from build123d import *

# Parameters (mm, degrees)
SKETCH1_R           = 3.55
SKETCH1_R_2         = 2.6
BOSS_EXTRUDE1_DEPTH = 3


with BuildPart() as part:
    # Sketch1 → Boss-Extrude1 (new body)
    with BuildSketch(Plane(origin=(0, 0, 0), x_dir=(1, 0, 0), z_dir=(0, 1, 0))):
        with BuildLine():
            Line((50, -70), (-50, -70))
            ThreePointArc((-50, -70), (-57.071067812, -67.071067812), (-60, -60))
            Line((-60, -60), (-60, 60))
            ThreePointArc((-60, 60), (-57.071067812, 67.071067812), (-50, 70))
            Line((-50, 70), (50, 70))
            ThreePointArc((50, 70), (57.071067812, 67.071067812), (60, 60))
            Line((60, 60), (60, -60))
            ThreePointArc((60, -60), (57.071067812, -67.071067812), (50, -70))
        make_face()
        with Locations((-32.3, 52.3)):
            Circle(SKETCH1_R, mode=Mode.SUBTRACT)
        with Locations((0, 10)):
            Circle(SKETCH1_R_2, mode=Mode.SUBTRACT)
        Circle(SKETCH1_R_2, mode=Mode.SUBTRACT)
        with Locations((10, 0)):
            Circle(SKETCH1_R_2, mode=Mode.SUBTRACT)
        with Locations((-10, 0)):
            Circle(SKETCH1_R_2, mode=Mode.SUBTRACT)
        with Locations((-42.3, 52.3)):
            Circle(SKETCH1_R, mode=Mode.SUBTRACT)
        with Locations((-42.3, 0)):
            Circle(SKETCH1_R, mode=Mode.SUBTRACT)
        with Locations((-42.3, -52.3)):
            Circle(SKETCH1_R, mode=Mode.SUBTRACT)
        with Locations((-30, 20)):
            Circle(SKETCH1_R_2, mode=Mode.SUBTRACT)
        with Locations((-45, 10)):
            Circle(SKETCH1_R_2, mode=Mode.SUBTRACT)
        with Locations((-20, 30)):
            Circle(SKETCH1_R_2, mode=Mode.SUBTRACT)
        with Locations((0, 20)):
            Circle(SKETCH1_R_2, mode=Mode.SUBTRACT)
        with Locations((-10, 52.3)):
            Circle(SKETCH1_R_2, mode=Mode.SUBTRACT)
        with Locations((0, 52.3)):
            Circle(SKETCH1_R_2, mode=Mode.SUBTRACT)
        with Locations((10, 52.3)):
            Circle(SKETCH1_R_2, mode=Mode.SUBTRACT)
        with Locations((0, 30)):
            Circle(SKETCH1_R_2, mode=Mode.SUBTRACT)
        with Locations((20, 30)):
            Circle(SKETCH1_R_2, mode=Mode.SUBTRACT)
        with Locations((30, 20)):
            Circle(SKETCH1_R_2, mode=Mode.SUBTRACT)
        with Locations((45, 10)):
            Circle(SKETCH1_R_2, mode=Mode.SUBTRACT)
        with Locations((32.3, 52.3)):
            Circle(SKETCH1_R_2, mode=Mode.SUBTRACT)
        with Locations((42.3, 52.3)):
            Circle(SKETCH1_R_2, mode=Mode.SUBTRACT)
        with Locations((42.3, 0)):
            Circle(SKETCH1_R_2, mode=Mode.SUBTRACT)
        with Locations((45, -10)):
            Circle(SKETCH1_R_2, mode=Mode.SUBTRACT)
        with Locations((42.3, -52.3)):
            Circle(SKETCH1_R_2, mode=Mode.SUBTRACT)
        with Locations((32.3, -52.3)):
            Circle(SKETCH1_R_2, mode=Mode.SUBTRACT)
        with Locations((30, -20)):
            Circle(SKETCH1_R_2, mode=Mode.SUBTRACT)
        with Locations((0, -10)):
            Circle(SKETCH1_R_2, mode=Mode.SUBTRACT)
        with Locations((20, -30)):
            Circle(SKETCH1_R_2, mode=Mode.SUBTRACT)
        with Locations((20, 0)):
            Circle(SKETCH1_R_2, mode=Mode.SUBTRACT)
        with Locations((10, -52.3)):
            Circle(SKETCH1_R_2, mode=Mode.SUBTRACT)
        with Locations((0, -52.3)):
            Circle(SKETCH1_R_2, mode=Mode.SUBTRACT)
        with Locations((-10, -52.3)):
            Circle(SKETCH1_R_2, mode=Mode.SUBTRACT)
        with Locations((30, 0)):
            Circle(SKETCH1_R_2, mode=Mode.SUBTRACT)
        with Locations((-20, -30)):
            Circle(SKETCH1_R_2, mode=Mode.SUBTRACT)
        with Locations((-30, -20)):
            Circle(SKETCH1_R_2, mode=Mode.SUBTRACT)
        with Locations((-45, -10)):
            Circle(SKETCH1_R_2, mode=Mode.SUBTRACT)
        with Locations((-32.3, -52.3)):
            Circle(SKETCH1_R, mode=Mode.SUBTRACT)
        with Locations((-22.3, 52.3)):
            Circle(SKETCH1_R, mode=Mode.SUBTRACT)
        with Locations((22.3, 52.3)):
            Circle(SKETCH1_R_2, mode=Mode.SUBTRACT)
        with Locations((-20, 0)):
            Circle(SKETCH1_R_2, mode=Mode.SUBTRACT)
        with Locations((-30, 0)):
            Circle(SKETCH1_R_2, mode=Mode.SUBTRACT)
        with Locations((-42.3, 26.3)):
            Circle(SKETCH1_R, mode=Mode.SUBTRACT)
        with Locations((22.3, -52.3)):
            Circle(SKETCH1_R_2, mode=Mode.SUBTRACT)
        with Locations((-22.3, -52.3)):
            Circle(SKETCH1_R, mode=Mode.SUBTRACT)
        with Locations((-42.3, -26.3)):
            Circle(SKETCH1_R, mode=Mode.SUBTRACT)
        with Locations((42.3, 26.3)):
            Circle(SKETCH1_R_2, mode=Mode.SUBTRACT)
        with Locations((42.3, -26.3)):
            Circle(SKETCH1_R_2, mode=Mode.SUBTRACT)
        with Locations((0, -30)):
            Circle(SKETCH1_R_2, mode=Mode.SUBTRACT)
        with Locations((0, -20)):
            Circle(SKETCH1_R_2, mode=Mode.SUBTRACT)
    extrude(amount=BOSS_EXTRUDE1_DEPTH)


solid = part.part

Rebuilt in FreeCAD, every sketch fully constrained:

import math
import FreeCAD as App
import Part
import Sketcher

V = App.Vector

doc = App.newDocument("Part")
body = doc.addObject("PartDesign::Body", "Body")

# Sketch on XZ plane
sketch1 = body.newObject("Sketcher::SketchObject", "Sketch")
sketch1.AttachmentSupport = (doc.getObject("XZ_Plane"), [""])
sketch1.MapMode = "FlatFace"
sketch1.addGeometry(Part.LineSegment(V(-50, 70, 0), V(50, 70, 0)), False)
sketch1.addGeometry(Part.ArcOfCircle(Part.Circle(V(50, 60, 0), V(0, 0, 1), 10), math.radians(0), math.radians(90)), False)
sketch1.addGeometry(Part.LineSegment(V(60, 60, 0), V(60, -60, 0)), False)
sketch1.addGeometry(Part.ArcOfCircle(Part.Circle(V(50, -60, 0), V(0, 0, 1), 10), math.radians(-90), math.radians(0)), False)
sketch1.addGeometry(Part.LineSegment(V(50, -70, 0), V(-50, -70, 0)), False)
sketch1.addGeometry(Part.ArcOfCircle(Part.Circle(V(-50, -60, 0), V(0, 0, 1), 10), math.radians(180), math.radians(270)), False)
sketch1.addGeometry(Part.LineSegment(V(-60, -60, 0), V(-60, 60, 0)), False)
sketch1.addGeometry(Part.ArcOfCircle(Part.Circle(V(-50, 60, 0), V(0, 0, 1), 10), math.radians(90), math.radians(180)), False)
sketch1.addGeometry(Part.Circle(V(42.3, 52.3, 0), V(0, 0, 1), 2.6), False)
sketch1.addGeometry(Part.Circle(V(32.3, 52.3, 0), V(0, 0, 1), 2.6), False)
sketch1.addGeometry(Part.Circle(V(22.3, 52.3, 0), V(0, 0, 1), 2.6), False)
sketch1.addGeometry(Part.Circle(V(10, 52.3, 0), V(0, 0, 1), 2.6), False)
sketch1.addGeometry(Part.Circle(V(20, 30, 0), V(0, 0, 1), 2.6), False)
sketch1.addGeometry(Part.Circle(V(42.3, 26.3, 0), V(0, 0, 1), 2.6), False)
sketch1.addGeometry(Part.Circle(V(30, 20, 0), V(0, 0, 1), 2.6), False)
sketch1.addGeometry(Part.Circle(V(45, 10, 0), V(0, 0, 1), 2.6), False)
sketch1.addGeometry(Part.Circle(V(0, 52.3, 0), V(0, 0, 1), 2.6), False)
sketch1.addGeometry(Part.Circle(V(-10, 52.3, 0), V(0, 0, 1), 2.6), False)
sketch1.addGeometry(Part.Circle(V(-22.3, 52.3, 0), V(0, 0, 1), 3.5), False)
sketch1.addGeometry(Part.Circle(V(0, 30, 0), V(0, 0, 1), 2.6), False)
sketch1.addGeometry(Part.Circle(V(-20, 30, 0), V(0, 0, 1), 2.6), False)
sketch1.addGeometry(Part.Circle(V(-32.3, 52.3, 0), V(0, 0, 1), 3.5), False)
sketch1.addGeometry(Part.Circle(V(-42.3, 52.3, 0), V(0, 0, 1), 3.5), False)
sketch1.addGeometry(Part.Circle(V(0, 20, 0), V(0, 0, 1), 2.6), False)
sketch1.addGeometry(Part.Circle(V(0, 10, 0), V(0, 0, 1), 2.6), False)
sketch1.addGeometry(Part.Circle(V(-30, 20, 0), V(0, 0, 1), 2.6), False)
sketch1.addGeometry(Part.Circle(V(-42.3, 26.3, 0), V(0, 0, 1), 3.5), False)
sketch1.addGeometry(Part.Circle(V(-45, 10, 0), V(0, 0, 1), 2.6), False)
sketch1.addGeometry(Part.Circle(V(42.3, 0, 0), V(0, 0, 1), 2.6), False)
sketch1.addGeometry(Part.Circle(V(45, -10, 0), V(0, 0, 1), 2.6), False)
sketch1.addGeometry(Part.Circle(V(30, 0, 0), V(0, 0, 1), 2.6), False)
sketch1.addGeometry(Part.Circle(V(42.3, -26.3, 0), V(0, 0, 1), 2.6), False)
sketch1.addGeometry(Part.Circle(V(30, -20, 0), V(0, 0, 1), 2.6), False)
sketch1.addGeometry(Part.Circle(V(20, 0, 0), V(0, 0, 1), 2.6), False)
sketch1.addGeometry(Part.Circle(V(10, 0, 0), V(0, 0, 1), 2.6), False)
sketch1.addGeometry(Part.Circle(V(42.3, -52.3, 0), V(0, 0, 1), 2.6), False)
sketch1.addGeometry(Part.Circle(V(32.3, -52.3, 0), V(0, 0, 1), 2.6), False)
sketch1.addGeometry(Part.Circle(V(20, -30, 0), V(0, 0, 1), 2.6), False)
sketch1.addGeometry(Part.Circle(V(22.3, -52.3, 0), V(0, 0, 1), 2.6), False)
sketch1.addGeometry(Part.Circle(V(10, -52.3, 0), V(0, 0, 1), 2.6), False)
sketch1.addGeometry(Part.Circle(V(0, 0, 0), V(0, 0, 1), 2.6), False)
sketch1.addGeometry(Part.Circle(V(-10, 0, 0), V(0, 0, 1), 2.6), False)
sketch1.addGeometry(Part.Circle(V(0, -10, 0), V(0, 0, 1), 2.6), False)
sketch1.addGeometry(Part.Circle(V(-20, 0, 0), V(0, 0, 1), 2.6), False)
sketch1.addGeometry(Part.Circle(V(0, -20, 0), V(0, 0, 1), 2.6), False)
sketch1.addGeometry(Part.Circle(V(-30, 0, 0), V(0, 0, 1), 2.6), False)
sketch1.addGeometry(Part.Circle(V(-42.3, 0, 0), V(0, 0, 1), 3.5), False)
sketch1.addGeometry(Part.Circle(V(-45, -10, 0), V(0, 0, 1), 2.6), False)
sketch1.addGeometry(Part.Circle(V(-30, -20, 0), V(0, 0, 1), 2.6), False)
sketch1.addGeometry(Part.Circle(V(-42.3, -26.3, 0), V(0, 0, 1), 3.5), False)
sketch1.addGeometry(Part.Circle(V(0, -30, 0), V(0, 0, 1), 2.6), False)
sketch1.addGeometry(Part.Circle(V(-20, -30, 0), V(0, 0, 1), 2.6), False)
sketch1.addGeometry(Part.Circle(V(0, -52.3, 0), V(0, 0, 1), 2.6), False)
sketch1.addGeometry(Part.Circle(V(-10, -52.3, 0), V(0, 0, 1), 2.6), False)
sketch1.addGeometry(Part.Circle(V(-22.3, -52.3, 0), V(0, 0, 1), 3.5), False)
sketch1.addGeometry(Part.Circle(V(-32.3, -52.3, 0), V(0, 0, 1), 3.5), False)
sketch1.addGeometry(Part.Circle(V(-42.3, -52.3, 0), V(0, 0, 1), 3.5), False)
sketch1.addConstraint(Sketcher.Constraint("Tangent", 0, 2, 1, 2))
sketch1.addConstraint(Sketcher.Constraint("Tangent", 1, 1, 2, 1))
sketch1.addConstraint(Sketcher.Constraint("Tangent", 2, 2, 3, 2))
sketch1.addConstraint(Sketcher.Constraint("Tangent", 3, 1, 4, 1))
sketch1.addConstraint(Sketcher.Constraint("Tangent", 4, 2, 5, 2))
sketch1.addConstraint(Sketcher.Constraint("Tangent", 5, 1, 6, 1))
sketch1.addConstraint(Sketcher.Constraint("Tangent", 6, 2, 7, 2))
sketch1.addConstraint(Sketcher.Constraint("Tangent", 7, 1, 0, 1))
sketch1.addConstraint(Sketcher.Constraint("Horizontal", 0))
sketch1.addConstraint(Sketcher.Constraint("Vertical", 2))
sketch1.addConstraint(Sketcher.Constraint("Horizontal", 4))
sketch1.addConstraint(Sketcher.Constraint("Vertical", 6))
sketch1.addConstraint(Sketcher.Constraint("Coincident", 40, 3, -1, 1))
sketch1.addConstraint(Sketcher.Constraint("Equal", 1, 3))
sketch1.addConstraint(Sketcher.Constraint("Equal", 3, 5))
sketch1.addConstraint(Sketcher.Constraint("Equal", 5, 7))
sketch1.addConstraint(Sketcher.Constraint("Equal", 8, 9))
sketch1.addConstraint(Sketcher.Constraint("Equal", 9, 10))
sketch1.addConstraint(Sketcher.Constraint("Equal", 10, 11))
sketch1.addConstraint(Sketcher.Constraint("Equal", 11, 12))
sketch1.addConstraint(Sketcher.Constraint("Equal", 12, 13))
sketch1.addConstraint(Sketcher.Constraint("Equal", 13, 14))
sketch1.addConstraint(Sketcher.Constraint("Equal", 14, 15))
sketch1.addConstraint(Sketcher.Constraint("Equal", 15, 16))
sketch1.addConstraint(Sketcher.Constraint("Equal", 16, 17))
sketch1.addConstraint(Sketcher.Constraint("Equal", 17, 19))
sketch1.addConstraint(Sketcher.Constraint("Equal", 19, 20))
sketch1.addConstraint(Sketcher.Constraint("Equal", 18, 21))
sketch1.addConstraint(Sketcher.Constraint("Equal", 21, 22))
sketch1.addConstraint(Sketcher.Constraint("Equal", 20, 23))
sketch1.addConstraint(Sketcher.Constraint("Equal", 23, 24))
sketch1.addConstraint(Sketcher.Constraint("Equal", 24, 25))
sketch1.addConstraint(Sketcher.Constraint("Equal", 22, 26))
sketch1.addConstraint(Sketcher.Constraint("Equal", 25, 27))
sketch1.addConstraint(Sketcher.Constraint("Equal", 27, 28))
sketch1.addConstraint(Sketcher.Constraint("Equal", 28, 29))
sketch1.addConstraint(Sketcher.Constraint("Equal", 29, 30))
sketch1.addConstraint(Sketcher.Constraint("Equal", 30, 31))
sketch1.addConstraint(Sketcher.Constraint("Equal", 31, 32))
sketch1.addConstraint(Sketcher.Constraint("Equal", 32, 33))
sketch1.addConstraint(Sketcher.Constraint("Equal", 33, 34))
sketch1.addConstraint(Sketcher.Constraint("Equal", 34, 35))
sketch1.addConstraint(Sketcher.Constraint("Equal", 35, 36))
sketch1.addConstraint(Sketcher.Constraint("Equal", 36, 37))
sketch1.addConstraint(Sketcher.Constraint("Equal", 37, 38))
sketch1.addConstraint(Sketcher.Constraint("Equal", 38, 39))
sketch1.addConstraint(Sketcher.Constraint("Equal", 39, 40))
sketch1.addConstraint(Sketcher.Constraint("Equal", 40, 41))
sketch1.addConstraint(Sketcher.Constraint("Equal", 41, 42))
sketch1.addConstraint(Sketcher.Constraint("Equal", 42, 43))
sketch1.addConstraint(Sketcher.Constraint("Equal", 43, 44))
sketch1.addConstraint(Sketcher.Constraint("Equal", 44, 45))
sketch1.addConstraint(Sketcher.Constraint("Equal", 26, 46))
sketch1.addConstraint(Sketcher.Constraint("Equal", 45, 47))
sketch1.addConstraint(Sketcher.Constraint("Equal", 47, 48))
sketch1.addConstraint(Sketcher.Constraint("Equal", 46, 49))
sketch1.addConstraint(Sketcher.Constraint("Equal", 48, 50))
sketch1.addConstraint(Sketcher.Constraint("Equal", 50, 51))
sketch1.addConstraint(Sketcher.Constraint("Equal", 51, 52))
sketch1.addConstraint(Sketcher.Constraint("Equal", 52, 53))
sketch1.addConstraint(Sketcher.Constraint("Equal", 49, 54))
sketch1.addConstraint(Sketcher.Constraint("Equal", 54, 55))
sketch1.addConstraint(Sketcher.Constraint("Equal", 55, 56))
sketch1.addConstraint(Sketcher.Constraint("Symmetric", 1, 3, 5, 3, -1, 1))
sketch1.addConstraint(Sketcher.Constraint("Symmetric", 27, 3, 29, 3, -1, 1))
sketch1.addConstraint(Sketcher.Constraint("Symmetric", 26, 3, 31, 3, -1, 1))
sketch1.addConstraint(Sketcher.Constraint("Symmetric", 25, 3, 32, 3, -1, 1))
sketch1.addConstraint(Sketcher.Constraint("Symmetric", 22, 3, 35, 3, -1, 1))
sketch1.addConstraint(Sketcher.Constraint("Symmetric", 21, 3, 36, 3, -1, 1))
sketch1.addConstraint(Sketcher.Constraint("Symmetric", 20, 3, 37, 3, -1, 1))
sketch1.addConstraint(Sketcher.Constraint("Symmetric", 18, 3, 38, 3, -1, 1))
sketch1.addConstraint(Sketcher.Constraint("Symmetric", 17, 3, 39, 3, -1, 1))
sketch1.addConstraint(Sketcher.Constraint("Symmetric", 34, 3, 41, 3, -1, 1))
sketch1.addConstraint(Sketcher.Constraint("Symmetric", 24, 3, 42, 3, -1, 1))
sketch1.addConstraint(Sketcher.Constraint("Symmetric", 33, 3, 43, 3, -1, 1))
sketch1.addConstraint(Sketcher.Constraint("Symmetric", 23, 3, 44, 3, -1, 1))
sketch1.addConstraint(Sketcher.Constraint("Symmetric", 30, 3, 45, 3, -1, 1))
sketch1.addConstraint(Sketcher.Constraint("Symmetric", 28, 3, 46, 3, -1, 1))
sketch1.addConstraint(Sketcher.Constraint("Symmetric", 15, 3, 47, 3, -1, 1))
sketch1.addConstraint(Sketcher.Constraint("Symmetric", 14, 3, 48, 3, -1, 1))
sketch1.addConstraint(Sketcher.Constraint("Symmetric", 13, 3, 49, 3, -1, 1))
sketch1.addConstraint(Sketcher.Constraint("Symmetric", 19, 3, 50, 3, -1, 1))
sketch1.addConstraint(Sketcher.Constraint("Symmetric", 12, 3, 51, 3, -1, 1))
sketch1.addConstraint(Sketcher.Constraint("Symmetric", 16, 3, 52, 3, -1, 1))
sketch1.addConstraint(Sketcher.Constraint("Symmetric", 11, 3, 53, 3, -1, 1))
sketch1.addConstraint(Sketcher.Constraint("Symmetric", 10, 3, 54, 3, -1, 1))
sketch1.addConstraint(Sketcher.Constraint("Symmetric", 9, 3, 55, 3, -1, 1))
sketch1.addConstraint(Sketcher.Constraint("Symmetric", 8, 3, 56, 3, -1, 1))
sketch1.addConstraint(Sketcher.Constraint("Symmetric", 11, 3, 17, 3, -2))
sketch1.addConstraint(Sketcher.Constraint("Symmetric", 10, 3, 18, 3, -2))
sketch1.addConstraint(Sketcher.Constraint("Symmetric", 12, 3, 20, 3, -2))
sketch1.addConstraint(Sketcher.Constraint("Symmetric", 9, 3, 21, 3, -2))
sketch1.addConstraint(Sketcher.Constraint("Symmetric", 8, 3, 22, 3, -2))
sketch1.addConstraint(Sketcher.Constraint("Symmetric", 14, 3, 25, 3, -2))
sketch1.addConstraint(Sketcher.Constraint("Symmetric", 13, 3, 26, 3, -2))
sketch1.addConstraint(Sketcher.Constraint("Symmetric", 15, 3, 27, 3, -2))
sketch1.addConstraint(Sketcher.Constraint("PointOnObject", 16, 3, -2))
sketch1.addConstraint(Sketcher.Constraint("PointOnObject", 19, 3, -2))
sketch1.addConstraint(Sketcher.Constraint("PointOnObject", 23, 3, -2))
sketch1.addConstraint(Sketcher.Constraint("PointOnObject", 24, 3, -2))
sketch1.addConstraint(Sketcher.Constraint("PointOnObject", 28, 3, -1))
sketch1.addConstraint(Sketcher.Constraint("PointOnObject", 30, 3, -1))
sketch1.addConstraint(Sketcher.Constraint("PointOnObject", 33, 3, -1))
sketch1.addConstraint(Sketcher.Constraint("PointOnObject", 34, 3, -1))
sketch1.addConstraint(Sketcher.Constraint("Horizontal", 8, 3, 9, 3))
sketch1.addConstraint(Sketcher.Constraint("Horizontal", 9, 3, 10, 3))
sketch1.addConstraint(Sketcher.Constraint("Horizontal", 10, 3, 11, 3))
sketch1.addConstraint(Sketcher.Constraint("Horizontal", 11, 3, 16, 3))
sketch1.addConstraint(Sketcher.Constraint("Horizontal", 12, 3, 19, 3))
sketch1.addConstraint(Sketcher.Constraint("Horizontal", 14, 3, 23, 3))
sketch1.addConstraint(Sketcher.Constraint("Horizontal", 15, 3, 24, 3))
sketch1.addConstraint(Sketcher.Constraint("Vertical", 8, 3, 13, 3))
sketch1.addConstraint(Sketcher.Constraint("Vertical", 13, 3, 28, 3))
sketch1.addConstraint(Sketcher.Constraint("Vertical", 14, 3, 30, 3))
sketch1.addConstraint(Sketcher.Constraint("Vertical", 12, 3, 33, 3))
sketch1.addConstraint(Sketcher.Constraint("Vertical", 11, 3, 34, 3))
sketch1.addConstraint(Sketcher.Constraint("Radius", 1, 10.0))
sketch1.addConstraint(Sketcher.Constraint("Diameter", 8, 5.2))
sketch1.addConstraint(Sketcher.Constraint("Diameter", 18, 7.1))
sketch1.addConstraint(Sketcher.Constraint("DistanceX", 0, 1, 0, 2, 100.0))
sketch1.addConstraint(Sketcher.Constraint("DistanceY", 2, 2, 2, 1, 120.0))
sketch1.addConstraint(Sketcher.Constraint("DistanceX", -1, 1, 11, 3, 10.0))
sketch1.addConstraint(Sketcher.Constraint("DistanceX", -1, 1, 12, 3, 20.0))
sketch1.addConstraint(Sketcher.Constraint("DistanceY", -1, 1, 12, 3, 30.0))
sketch1.addConstraint(Sketcher.Constraint("DistanceX", -1, 1, 14, 3, 30.0))
sketch1.addConstraint(Sketcher.Constraint("DistanceY", -1, 1, 14, 3, 20.0))
sketch1.addConstraint(Sketcher.Constraint("DistanceX", -1, 1, 15, 3, 45.0))
sketch1.addConstraint(Sketcher.Constraint("DistanceY", -1, 1, 15, 3, 10.0))
sketch1.addConstraint(Sketcher.Constraint("DistanceX", -1, 1, 8, 3, 42.3))
sketch1.addConstraint(Sketcher.Constraint("DistanceY", -1, 1, 8, 3, 52.3))
sketch1.addConstraint(Sketcher.Constraint("DistanceX", -1, 1, 9, 3, 32.3))
sketch1.addConstraint(Sketcher.Constraint("DistanceX", -1, 1, 10, 3, 22.3))
sketch1.addConstraint(Sketcher.Constraint("DistanceY", -1, 1, 13, 3, 26.3))
pad1 = body.newObject("PartDesign::Pad", "Pad")
pad1.Profile = sketch1
pad1.Length = 3
pad1.Reversed = True

doc.recompute()
